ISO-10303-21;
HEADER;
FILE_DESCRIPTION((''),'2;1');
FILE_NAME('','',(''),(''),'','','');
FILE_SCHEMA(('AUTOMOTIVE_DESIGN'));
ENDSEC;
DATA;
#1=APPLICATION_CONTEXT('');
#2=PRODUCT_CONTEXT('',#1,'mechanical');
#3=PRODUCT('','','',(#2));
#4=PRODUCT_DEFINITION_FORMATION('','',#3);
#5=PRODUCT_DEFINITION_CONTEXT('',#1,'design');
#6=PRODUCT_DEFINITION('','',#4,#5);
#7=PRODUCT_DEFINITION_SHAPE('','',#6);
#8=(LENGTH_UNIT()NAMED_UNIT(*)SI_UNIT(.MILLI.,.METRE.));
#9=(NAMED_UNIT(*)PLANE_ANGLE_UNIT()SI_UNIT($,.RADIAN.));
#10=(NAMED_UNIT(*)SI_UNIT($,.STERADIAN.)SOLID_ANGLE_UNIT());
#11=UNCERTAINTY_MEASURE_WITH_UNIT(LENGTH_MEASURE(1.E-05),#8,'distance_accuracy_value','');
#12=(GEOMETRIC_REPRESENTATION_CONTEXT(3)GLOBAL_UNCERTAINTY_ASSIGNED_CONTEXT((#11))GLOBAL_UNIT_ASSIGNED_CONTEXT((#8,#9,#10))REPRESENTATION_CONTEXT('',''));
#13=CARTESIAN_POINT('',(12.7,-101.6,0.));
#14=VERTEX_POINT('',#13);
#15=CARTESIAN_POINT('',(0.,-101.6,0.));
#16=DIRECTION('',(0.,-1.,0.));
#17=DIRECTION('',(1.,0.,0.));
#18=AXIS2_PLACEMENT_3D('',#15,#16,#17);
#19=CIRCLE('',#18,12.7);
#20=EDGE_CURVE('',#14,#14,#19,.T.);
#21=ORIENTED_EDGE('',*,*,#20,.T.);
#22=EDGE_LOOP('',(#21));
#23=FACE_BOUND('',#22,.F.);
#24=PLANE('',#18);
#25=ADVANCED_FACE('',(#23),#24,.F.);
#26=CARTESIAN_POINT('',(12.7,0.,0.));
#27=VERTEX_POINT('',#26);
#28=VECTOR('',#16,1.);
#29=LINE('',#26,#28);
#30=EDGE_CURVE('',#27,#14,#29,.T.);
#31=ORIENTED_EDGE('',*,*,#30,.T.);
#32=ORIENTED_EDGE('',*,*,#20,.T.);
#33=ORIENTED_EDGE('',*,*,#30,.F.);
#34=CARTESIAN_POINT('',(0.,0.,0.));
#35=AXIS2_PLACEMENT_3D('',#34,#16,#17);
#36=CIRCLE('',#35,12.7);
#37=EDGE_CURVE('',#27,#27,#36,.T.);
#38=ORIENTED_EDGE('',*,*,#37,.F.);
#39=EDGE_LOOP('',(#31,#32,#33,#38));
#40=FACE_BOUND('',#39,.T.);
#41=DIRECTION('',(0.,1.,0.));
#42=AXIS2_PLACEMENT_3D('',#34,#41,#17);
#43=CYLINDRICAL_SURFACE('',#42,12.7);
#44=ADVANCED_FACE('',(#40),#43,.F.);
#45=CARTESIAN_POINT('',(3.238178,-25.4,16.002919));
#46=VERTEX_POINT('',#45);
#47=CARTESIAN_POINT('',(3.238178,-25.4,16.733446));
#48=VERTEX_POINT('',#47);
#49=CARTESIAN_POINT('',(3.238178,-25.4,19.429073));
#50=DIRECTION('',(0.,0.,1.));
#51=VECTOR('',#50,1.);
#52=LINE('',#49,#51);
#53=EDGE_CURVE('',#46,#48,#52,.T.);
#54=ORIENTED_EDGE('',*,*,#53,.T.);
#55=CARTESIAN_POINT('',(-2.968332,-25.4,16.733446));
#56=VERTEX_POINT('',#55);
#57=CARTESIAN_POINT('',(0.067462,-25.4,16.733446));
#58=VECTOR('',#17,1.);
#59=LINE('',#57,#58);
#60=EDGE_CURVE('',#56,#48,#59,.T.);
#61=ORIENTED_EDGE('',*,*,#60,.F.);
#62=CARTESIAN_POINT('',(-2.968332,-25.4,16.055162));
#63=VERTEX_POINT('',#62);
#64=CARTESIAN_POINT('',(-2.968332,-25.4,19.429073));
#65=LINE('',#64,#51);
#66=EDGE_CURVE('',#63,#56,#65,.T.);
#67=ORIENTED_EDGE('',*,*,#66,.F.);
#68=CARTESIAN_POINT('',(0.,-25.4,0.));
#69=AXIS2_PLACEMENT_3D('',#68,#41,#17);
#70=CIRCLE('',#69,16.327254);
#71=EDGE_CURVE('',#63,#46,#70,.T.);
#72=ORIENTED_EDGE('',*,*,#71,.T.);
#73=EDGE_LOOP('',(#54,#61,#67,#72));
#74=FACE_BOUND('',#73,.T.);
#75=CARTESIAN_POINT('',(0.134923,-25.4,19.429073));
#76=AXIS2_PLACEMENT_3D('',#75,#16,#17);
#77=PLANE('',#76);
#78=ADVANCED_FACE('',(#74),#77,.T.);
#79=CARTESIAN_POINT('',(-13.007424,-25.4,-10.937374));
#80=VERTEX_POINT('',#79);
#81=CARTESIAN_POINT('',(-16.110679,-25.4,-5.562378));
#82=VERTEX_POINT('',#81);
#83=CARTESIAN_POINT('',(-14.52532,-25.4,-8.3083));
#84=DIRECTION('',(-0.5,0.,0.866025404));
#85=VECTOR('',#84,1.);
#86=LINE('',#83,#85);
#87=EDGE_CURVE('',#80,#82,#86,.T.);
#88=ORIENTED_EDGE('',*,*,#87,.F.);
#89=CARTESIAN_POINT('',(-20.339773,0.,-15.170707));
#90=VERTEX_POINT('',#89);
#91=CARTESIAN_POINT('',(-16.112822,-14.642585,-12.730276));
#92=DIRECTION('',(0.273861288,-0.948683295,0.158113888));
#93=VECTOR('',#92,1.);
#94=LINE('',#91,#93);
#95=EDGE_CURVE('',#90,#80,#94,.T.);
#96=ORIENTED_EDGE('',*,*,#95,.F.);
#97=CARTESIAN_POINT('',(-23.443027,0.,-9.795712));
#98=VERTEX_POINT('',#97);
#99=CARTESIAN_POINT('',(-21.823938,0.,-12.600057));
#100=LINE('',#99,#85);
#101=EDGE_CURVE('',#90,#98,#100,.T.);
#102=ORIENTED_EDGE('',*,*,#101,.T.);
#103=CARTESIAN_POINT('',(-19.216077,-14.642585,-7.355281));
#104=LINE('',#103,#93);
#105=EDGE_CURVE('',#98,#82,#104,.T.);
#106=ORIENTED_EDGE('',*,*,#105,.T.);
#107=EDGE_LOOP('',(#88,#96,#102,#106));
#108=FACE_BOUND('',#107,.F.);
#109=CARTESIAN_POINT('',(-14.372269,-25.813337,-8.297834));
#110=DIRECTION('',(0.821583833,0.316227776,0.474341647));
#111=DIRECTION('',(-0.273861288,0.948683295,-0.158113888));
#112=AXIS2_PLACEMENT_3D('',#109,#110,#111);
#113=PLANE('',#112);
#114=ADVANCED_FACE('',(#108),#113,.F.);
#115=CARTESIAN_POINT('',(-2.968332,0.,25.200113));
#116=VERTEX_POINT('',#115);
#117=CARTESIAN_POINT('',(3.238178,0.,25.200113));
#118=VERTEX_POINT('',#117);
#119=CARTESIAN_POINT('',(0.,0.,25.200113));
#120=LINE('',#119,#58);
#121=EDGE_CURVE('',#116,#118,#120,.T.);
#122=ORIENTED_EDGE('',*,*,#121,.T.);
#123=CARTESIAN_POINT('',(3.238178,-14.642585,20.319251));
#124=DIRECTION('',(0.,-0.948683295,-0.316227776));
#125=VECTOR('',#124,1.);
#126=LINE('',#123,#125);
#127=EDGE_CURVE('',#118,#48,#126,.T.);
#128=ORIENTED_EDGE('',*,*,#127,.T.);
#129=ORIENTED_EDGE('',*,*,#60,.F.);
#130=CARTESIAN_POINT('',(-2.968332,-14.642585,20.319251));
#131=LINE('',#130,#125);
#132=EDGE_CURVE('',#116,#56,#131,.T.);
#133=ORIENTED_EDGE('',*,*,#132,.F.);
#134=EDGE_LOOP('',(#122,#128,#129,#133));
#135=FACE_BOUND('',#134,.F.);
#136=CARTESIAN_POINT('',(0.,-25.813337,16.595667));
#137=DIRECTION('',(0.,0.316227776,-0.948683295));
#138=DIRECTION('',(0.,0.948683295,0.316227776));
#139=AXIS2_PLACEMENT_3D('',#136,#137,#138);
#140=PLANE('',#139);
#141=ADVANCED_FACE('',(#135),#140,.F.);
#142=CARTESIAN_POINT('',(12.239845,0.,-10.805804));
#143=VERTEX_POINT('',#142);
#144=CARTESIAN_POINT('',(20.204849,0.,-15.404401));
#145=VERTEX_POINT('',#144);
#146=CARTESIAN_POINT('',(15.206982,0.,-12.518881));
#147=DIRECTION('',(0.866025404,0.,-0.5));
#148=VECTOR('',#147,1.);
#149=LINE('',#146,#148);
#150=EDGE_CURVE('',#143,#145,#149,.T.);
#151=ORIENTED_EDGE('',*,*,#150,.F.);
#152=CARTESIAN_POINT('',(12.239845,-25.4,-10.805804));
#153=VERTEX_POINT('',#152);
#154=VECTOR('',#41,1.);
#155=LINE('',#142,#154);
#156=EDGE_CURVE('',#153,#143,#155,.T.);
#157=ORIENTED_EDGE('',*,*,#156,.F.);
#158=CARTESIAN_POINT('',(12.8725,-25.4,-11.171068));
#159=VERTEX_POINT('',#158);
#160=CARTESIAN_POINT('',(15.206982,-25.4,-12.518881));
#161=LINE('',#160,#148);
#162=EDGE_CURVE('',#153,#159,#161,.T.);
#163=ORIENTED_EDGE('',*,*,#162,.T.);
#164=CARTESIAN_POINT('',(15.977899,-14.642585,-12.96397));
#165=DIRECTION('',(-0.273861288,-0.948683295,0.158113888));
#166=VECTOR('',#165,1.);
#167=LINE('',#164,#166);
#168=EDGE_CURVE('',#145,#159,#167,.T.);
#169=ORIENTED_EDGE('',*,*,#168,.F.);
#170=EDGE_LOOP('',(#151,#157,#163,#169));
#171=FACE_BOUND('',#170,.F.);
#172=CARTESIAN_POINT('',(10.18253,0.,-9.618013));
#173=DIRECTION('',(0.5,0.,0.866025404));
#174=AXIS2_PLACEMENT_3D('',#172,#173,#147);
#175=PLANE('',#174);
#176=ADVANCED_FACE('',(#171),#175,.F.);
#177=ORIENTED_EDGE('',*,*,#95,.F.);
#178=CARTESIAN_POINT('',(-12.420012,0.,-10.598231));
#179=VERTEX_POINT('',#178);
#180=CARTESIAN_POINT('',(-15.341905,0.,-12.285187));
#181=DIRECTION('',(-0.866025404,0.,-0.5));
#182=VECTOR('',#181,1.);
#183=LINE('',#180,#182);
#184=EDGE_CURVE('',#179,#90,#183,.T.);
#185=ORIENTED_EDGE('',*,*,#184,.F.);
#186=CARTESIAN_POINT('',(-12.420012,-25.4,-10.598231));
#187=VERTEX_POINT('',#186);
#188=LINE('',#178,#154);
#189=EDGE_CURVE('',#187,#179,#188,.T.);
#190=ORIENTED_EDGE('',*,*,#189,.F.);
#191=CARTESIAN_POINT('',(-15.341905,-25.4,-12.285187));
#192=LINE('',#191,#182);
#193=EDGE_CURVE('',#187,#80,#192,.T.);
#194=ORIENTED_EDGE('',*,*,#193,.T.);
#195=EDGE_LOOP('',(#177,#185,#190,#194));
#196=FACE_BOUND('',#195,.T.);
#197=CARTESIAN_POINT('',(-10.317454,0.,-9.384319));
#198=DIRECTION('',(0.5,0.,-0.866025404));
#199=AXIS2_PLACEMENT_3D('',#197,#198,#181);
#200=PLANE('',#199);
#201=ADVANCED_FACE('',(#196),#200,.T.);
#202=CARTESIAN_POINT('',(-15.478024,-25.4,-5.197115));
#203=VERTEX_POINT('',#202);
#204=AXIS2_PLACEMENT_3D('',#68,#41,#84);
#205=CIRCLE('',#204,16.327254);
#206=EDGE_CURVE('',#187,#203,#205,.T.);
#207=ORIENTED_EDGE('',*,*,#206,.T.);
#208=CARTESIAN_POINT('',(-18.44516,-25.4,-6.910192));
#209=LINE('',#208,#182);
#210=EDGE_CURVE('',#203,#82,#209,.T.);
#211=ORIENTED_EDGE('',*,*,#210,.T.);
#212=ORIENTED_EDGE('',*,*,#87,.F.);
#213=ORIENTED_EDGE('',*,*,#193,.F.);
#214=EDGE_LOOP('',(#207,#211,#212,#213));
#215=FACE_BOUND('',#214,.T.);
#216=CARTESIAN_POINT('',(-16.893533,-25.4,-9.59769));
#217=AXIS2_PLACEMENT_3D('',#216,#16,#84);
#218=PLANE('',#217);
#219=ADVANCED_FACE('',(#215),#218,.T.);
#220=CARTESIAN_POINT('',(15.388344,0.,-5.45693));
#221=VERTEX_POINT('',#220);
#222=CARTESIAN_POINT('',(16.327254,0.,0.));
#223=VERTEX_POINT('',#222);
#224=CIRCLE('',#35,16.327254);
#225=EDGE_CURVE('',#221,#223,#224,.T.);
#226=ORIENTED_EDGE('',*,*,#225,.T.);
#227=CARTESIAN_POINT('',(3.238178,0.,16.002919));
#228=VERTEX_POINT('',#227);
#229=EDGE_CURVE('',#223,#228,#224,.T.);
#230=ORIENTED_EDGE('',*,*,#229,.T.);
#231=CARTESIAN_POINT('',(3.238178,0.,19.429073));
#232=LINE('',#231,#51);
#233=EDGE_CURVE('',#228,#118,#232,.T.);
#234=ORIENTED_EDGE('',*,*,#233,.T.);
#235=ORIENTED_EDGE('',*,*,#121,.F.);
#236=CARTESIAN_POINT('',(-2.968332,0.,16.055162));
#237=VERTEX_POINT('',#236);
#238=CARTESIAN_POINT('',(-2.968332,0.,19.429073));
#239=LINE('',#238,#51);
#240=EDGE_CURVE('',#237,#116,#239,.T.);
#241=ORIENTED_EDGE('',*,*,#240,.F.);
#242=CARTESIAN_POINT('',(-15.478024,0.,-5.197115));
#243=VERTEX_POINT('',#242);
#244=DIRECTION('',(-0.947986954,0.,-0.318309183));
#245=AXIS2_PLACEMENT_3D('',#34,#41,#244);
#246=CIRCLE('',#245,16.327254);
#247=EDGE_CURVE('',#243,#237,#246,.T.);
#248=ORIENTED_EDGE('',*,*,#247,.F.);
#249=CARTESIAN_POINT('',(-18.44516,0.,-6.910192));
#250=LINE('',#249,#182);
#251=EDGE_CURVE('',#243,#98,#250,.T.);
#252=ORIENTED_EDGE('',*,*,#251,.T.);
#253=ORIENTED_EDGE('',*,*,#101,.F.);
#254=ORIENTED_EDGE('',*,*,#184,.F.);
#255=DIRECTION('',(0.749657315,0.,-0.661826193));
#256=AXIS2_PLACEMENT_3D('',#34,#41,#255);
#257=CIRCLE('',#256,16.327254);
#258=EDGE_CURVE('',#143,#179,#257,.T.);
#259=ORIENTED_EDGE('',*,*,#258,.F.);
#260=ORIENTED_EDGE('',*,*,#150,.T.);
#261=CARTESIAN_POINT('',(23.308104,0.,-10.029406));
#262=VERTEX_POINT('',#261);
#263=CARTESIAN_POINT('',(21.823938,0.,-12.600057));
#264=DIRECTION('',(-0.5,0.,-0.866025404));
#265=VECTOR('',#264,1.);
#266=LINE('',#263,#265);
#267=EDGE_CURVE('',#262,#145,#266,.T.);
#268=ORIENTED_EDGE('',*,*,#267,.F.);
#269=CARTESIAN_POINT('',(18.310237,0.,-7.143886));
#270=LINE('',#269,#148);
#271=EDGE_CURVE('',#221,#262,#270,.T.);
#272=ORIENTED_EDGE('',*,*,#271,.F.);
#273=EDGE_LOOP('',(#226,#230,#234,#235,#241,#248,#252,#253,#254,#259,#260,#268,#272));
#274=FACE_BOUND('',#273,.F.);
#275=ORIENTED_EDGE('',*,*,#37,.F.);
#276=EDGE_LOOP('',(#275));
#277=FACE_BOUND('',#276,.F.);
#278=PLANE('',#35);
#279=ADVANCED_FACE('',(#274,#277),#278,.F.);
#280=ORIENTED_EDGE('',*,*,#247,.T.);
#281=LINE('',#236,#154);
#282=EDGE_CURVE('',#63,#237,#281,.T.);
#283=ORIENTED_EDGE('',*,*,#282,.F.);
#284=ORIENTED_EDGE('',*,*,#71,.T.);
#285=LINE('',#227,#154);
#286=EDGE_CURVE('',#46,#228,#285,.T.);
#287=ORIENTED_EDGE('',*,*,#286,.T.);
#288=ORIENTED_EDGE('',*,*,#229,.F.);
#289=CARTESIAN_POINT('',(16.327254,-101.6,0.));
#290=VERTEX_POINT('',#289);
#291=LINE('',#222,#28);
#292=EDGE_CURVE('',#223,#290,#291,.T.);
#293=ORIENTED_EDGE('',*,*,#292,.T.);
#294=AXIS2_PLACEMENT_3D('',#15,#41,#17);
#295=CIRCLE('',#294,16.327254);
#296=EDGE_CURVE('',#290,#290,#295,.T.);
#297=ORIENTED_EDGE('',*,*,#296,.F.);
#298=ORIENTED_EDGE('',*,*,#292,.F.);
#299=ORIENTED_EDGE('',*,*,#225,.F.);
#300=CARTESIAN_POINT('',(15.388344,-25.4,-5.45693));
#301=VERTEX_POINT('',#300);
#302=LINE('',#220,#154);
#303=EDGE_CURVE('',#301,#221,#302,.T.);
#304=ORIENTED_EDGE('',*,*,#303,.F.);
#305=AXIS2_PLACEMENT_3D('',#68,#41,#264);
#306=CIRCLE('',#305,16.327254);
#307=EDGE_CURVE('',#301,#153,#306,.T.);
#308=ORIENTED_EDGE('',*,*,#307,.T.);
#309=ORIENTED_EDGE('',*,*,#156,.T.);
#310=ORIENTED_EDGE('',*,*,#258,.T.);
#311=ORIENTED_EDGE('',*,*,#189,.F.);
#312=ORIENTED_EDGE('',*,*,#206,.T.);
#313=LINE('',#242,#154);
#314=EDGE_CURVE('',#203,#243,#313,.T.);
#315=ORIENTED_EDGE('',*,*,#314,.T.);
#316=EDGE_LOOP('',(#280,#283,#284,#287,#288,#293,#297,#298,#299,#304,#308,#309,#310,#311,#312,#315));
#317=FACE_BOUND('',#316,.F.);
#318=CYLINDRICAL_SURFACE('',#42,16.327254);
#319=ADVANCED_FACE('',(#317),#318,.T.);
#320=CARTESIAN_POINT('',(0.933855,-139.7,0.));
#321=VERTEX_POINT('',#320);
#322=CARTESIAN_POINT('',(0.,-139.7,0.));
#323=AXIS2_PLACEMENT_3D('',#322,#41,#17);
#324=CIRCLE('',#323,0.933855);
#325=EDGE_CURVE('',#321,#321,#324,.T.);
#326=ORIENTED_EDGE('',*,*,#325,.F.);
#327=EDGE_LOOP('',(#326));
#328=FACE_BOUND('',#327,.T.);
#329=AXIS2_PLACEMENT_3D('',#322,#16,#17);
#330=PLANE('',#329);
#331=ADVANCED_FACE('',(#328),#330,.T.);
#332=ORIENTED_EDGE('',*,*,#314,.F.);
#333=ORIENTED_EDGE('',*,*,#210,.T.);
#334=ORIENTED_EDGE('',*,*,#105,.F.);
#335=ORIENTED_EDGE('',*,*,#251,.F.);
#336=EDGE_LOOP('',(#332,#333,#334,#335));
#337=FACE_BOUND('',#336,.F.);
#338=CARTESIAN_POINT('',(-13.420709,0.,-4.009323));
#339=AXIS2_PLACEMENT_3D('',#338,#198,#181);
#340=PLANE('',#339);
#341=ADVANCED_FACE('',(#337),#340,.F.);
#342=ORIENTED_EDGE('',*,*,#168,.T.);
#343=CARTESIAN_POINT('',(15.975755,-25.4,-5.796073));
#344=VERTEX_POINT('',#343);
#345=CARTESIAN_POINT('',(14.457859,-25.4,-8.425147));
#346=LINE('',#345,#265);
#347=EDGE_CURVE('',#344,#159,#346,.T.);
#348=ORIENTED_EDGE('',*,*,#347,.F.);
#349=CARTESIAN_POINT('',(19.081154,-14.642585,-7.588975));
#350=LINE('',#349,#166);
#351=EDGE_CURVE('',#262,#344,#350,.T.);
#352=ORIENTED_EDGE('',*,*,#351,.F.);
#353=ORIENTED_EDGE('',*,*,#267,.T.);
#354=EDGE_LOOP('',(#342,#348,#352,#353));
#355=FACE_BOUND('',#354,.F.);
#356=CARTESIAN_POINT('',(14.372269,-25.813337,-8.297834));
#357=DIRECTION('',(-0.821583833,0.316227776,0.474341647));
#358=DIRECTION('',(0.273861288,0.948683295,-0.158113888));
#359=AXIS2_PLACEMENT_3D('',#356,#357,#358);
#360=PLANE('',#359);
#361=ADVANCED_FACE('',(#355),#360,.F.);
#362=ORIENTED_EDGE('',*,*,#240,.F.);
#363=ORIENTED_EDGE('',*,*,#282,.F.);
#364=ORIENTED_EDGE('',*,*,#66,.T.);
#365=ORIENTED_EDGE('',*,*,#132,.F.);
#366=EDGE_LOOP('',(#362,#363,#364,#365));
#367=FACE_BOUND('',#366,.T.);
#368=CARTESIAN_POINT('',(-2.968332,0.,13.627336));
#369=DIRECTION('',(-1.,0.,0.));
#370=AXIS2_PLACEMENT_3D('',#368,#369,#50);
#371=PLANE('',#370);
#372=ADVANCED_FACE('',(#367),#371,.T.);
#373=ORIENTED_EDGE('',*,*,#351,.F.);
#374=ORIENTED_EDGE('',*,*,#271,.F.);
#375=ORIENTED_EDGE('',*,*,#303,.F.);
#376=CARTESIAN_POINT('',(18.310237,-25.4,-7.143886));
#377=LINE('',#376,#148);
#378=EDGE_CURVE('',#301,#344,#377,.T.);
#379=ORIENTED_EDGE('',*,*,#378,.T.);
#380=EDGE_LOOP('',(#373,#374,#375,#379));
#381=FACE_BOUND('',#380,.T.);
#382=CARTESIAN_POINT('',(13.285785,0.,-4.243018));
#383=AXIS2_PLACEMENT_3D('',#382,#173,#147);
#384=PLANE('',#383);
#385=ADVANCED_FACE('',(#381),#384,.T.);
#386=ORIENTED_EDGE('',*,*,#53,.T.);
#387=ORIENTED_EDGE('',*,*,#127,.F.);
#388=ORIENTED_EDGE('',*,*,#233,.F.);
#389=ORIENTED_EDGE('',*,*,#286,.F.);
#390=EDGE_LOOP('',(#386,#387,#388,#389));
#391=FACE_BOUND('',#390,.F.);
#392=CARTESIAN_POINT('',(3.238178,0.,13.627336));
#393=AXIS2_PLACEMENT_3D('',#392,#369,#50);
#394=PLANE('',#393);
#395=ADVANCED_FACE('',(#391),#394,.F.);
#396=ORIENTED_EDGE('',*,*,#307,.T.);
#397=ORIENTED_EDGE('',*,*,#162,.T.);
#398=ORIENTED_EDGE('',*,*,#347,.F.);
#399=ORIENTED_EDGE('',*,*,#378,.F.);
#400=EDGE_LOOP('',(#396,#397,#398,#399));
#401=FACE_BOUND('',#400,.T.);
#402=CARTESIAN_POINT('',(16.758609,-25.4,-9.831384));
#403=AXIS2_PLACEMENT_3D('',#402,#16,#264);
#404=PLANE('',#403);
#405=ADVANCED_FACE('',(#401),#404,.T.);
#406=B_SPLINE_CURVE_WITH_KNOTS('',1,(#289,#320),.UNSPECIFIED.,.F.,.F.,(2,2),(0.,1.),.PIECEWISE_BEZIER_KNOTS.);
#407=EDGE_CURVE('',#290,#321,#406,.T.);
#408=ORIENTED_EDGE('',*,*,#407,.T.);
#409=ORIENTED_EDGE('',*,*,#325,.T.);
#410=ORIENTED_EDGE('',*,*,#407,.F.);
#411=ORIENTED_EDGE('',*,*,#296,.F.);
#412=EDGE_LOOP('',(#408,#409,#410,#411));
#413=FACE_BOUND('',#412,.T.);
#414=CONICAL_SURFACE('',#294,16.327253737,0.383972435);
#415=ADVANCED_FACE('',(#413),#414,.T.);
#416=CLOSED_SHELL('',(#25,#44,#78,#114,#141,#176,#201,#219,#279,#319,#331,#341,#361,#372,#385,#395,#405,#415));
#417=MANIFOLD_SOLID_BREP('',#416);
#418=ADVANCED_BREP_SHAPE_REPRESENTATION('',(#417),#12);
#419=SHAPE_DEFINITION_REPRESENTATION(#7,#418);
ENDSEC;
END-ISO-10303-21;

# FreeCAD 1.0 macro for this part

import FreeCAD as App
import Part
import Sketcher
from FreeCAD import Vector
Q = App.Units.Quantity

doc = App.newDocument("Part")
body = doc.addObject("PartDesign::Body", "Body")

sketch1 = doc.addObject("Sketcher::SketchObject", "Sketch")
body.addObject(sketch1)
sketch1.AttachmentSupport = (doc.XZ_Plane, [""])
sketch1.MapMode = "FlatFace"
sketch1.addGeometry([
    Part.Circle(Vector(0, 0, 0), Vector(0, 0, 1), 16),
    Part.Circle(Vector(0, 0, 0), Vector(0, 0, 1), 13),
], False)
sketch1.addConstraint([
    Sketcher.Constraint("Coincident", 0, 3, -1, 1),
    Sketcher.Constraint("Coincident", 1, 3, -1, 1),
    Sketcher.Constraint("Diameter", 1, Q("1 in")),
    Sketcher.Constraint("Diameter", 0, 32.654507),
])
pad1 = doc.addObject("PartDesign::Pad", "Pad")
body.addObject(pad1)
pad1.Profile = sketch1
pad1.Length = Q("4 in")

sketch2 = doc.addObject("Sketcher::SketchObject", "Sketch001")
body.addObject(sketch2)
sketch2.AttachmentSupport = (doc.XZ_Plane, [""])
sketch2.MapMode = "FlatFace"
sketch2.AttachmentOffset = App.Placement(Vector(0, 0, 4 * 25.4), App.Rotation())
sketch2.addGeometry(Part.Circle(Vector(0, 0, 0), Vector(0, 0, 1), 16), False)
sketch2.addConstraint([
    Sketcher.Constraint("Coincident", 0, 3, -1, 1),
    Sketcher.Constraint("Diameter", 0, 32.654507),
])
pad2 = doc.addObject("PartDesign::Pad", "Pad001")
body.addObject(pad2)
pad2.Profile = sketch2
pad2.Length = Q("1.5 in")
pad2.TaperAngle = -22

sketch3 = doc.addObject("Sketcher::SketchObject", "Sketch002")
body.addObject(sketch3)
sketch3.AttachmentSupport = (doc.XZ_Plane, [""])
sketch3.MapMode = "FlatFace"
sketch3.addGeometry([
    Part.LineSegment(Vector(-3, 25, 0), Vector(-3, 14, 0)),
    Part.LineSegment(Vector(-3, 14, 0), Vector(3, 14, 0)),
    Part.LineSegment(Vector(3, 14, 0), Vector(3, 25, 0)),
    Part.LineSegment(Vector(3, 25, 0), Vector(-3, 25, 0)),
], False)
sketch3.addConstraint([
    Sketcher.Constraint("Coincident", 0, 2, 1, 1),
    Sketcher.Constraint("Coincident", 1, 2, 2, 1),
    Sketcher.Constraint("Coincident", 2, 2, 3, 1),
    Sketcher.Constraint("Coincident", 3, 2, 0, 1),
    Sketcher.Constraint("Vertical", 0),
    Sketcher.Constraint("Horizontal", 1),
    Sketcher.Constraint("Vertical", 2),
    Sketcher.Constraint("Horizontal", 3),
    Sketcher.Constraint("DistanceX", 1, 1, 1, 2, 6.20651),
    Sketcher.Constraint("DistanceY", 0, 2, 0, 1, 11.603474),
    Sketcher.Constraint("DistanceX", 0, 2, -1, 1, 2.968332),
    Sketcher.Constraint("DistanceY", -1, 1, 2, 2, 25.23081),
])
pad3 = doc.addObject("PartDesign::Pad", "Pad002")
body.addObject(pad3)
pad3.Profile = sketch3
pad3.Length = Q("1 in")

sketch4 = doc.addObject("Sketcher::SketchObject", "Sketch003")
body.addObject(sketch4)
sketch4.AttachmentSupport = (doc.YZ_Plane, [""])
sketch4.MapMode = "FlatFace"
sketch4.addGeometry([
    Part.LineSegment(Vector(25.997523, 33.865955, 0), Vector(-25.543487, 34.405652, 0)),
    Part.LineSegment(Vector(-25.543487, 34.405652, 0), Vector(-25.813337, 16.595667, 0)),
    Part.LineSegment(Vector(-25.813337, 16.595667, 0), Vector(25.997523, 33.865955, 0)),
], False)
sketch4.addConstraint([
    Sketcher.Constraint("Coincident", 0, 2, 1, 1),
    Sketcher.Constraint("Coincident", 1, 2, 2, 1),
    Sketcher.Constraint("Coincident", 2, 2, 0, 1),
    Sketcher.Constraint("Distance", 1, 17.812029),
    Sketcher.Constraint("DistanceX", 1, 2, 0, 2, 0.269851),
    Sketcher.Constraint("DistanceX", 0, 2, 2, 2, 51.54101),
    Sketcher.Constraint("Distance", 0, 51.543835),
    Sketcher.Constraint("DistanceX", 0, 2, -1, 1, 25.543487),
    Sketcher.Constraint("DistanceY", -1, 1, 0, 2, 34.405652),
])
pocket1 = doc.addObject("PartDesign::Pocket", "Pocket")
body.addObject(pocket1)
pocket1.Profile = sketch4
pocket1.Length = Q("1 in")
pocket1.Midplane = True
body2 = doc.addObject("PartDesign::Body", "Body001")
doc.recompute()

body2.BaseFeature = body
doc.recompute()

body3 = doc.addObject("PartDesign::Body", "Body002")
body3.BaseFeature = body
body3.Placement = App.Placement(Vector(0, 0, 0), App.Rotation(Vector(0, -1, 0), 120))
boolean = doc.addObject("PartDesign::Boolean", "Boolean")
body2.addObject(boolean)
boolean.Type = "Fuse"
boolean.addObjects([body3])
doc.recompute()

body.Placement = App.Placement(Vector(0, 0, 0), App.Rotation(Vector(0, -1, 0), 240))
boolean2 = doc.addObject("PartDesign::Boolean", "Boolean001")
body2.addObject(boolean2)
boolean2.Type = "Fuse"
boolean2.addObjects([body])

doc.recompute()
